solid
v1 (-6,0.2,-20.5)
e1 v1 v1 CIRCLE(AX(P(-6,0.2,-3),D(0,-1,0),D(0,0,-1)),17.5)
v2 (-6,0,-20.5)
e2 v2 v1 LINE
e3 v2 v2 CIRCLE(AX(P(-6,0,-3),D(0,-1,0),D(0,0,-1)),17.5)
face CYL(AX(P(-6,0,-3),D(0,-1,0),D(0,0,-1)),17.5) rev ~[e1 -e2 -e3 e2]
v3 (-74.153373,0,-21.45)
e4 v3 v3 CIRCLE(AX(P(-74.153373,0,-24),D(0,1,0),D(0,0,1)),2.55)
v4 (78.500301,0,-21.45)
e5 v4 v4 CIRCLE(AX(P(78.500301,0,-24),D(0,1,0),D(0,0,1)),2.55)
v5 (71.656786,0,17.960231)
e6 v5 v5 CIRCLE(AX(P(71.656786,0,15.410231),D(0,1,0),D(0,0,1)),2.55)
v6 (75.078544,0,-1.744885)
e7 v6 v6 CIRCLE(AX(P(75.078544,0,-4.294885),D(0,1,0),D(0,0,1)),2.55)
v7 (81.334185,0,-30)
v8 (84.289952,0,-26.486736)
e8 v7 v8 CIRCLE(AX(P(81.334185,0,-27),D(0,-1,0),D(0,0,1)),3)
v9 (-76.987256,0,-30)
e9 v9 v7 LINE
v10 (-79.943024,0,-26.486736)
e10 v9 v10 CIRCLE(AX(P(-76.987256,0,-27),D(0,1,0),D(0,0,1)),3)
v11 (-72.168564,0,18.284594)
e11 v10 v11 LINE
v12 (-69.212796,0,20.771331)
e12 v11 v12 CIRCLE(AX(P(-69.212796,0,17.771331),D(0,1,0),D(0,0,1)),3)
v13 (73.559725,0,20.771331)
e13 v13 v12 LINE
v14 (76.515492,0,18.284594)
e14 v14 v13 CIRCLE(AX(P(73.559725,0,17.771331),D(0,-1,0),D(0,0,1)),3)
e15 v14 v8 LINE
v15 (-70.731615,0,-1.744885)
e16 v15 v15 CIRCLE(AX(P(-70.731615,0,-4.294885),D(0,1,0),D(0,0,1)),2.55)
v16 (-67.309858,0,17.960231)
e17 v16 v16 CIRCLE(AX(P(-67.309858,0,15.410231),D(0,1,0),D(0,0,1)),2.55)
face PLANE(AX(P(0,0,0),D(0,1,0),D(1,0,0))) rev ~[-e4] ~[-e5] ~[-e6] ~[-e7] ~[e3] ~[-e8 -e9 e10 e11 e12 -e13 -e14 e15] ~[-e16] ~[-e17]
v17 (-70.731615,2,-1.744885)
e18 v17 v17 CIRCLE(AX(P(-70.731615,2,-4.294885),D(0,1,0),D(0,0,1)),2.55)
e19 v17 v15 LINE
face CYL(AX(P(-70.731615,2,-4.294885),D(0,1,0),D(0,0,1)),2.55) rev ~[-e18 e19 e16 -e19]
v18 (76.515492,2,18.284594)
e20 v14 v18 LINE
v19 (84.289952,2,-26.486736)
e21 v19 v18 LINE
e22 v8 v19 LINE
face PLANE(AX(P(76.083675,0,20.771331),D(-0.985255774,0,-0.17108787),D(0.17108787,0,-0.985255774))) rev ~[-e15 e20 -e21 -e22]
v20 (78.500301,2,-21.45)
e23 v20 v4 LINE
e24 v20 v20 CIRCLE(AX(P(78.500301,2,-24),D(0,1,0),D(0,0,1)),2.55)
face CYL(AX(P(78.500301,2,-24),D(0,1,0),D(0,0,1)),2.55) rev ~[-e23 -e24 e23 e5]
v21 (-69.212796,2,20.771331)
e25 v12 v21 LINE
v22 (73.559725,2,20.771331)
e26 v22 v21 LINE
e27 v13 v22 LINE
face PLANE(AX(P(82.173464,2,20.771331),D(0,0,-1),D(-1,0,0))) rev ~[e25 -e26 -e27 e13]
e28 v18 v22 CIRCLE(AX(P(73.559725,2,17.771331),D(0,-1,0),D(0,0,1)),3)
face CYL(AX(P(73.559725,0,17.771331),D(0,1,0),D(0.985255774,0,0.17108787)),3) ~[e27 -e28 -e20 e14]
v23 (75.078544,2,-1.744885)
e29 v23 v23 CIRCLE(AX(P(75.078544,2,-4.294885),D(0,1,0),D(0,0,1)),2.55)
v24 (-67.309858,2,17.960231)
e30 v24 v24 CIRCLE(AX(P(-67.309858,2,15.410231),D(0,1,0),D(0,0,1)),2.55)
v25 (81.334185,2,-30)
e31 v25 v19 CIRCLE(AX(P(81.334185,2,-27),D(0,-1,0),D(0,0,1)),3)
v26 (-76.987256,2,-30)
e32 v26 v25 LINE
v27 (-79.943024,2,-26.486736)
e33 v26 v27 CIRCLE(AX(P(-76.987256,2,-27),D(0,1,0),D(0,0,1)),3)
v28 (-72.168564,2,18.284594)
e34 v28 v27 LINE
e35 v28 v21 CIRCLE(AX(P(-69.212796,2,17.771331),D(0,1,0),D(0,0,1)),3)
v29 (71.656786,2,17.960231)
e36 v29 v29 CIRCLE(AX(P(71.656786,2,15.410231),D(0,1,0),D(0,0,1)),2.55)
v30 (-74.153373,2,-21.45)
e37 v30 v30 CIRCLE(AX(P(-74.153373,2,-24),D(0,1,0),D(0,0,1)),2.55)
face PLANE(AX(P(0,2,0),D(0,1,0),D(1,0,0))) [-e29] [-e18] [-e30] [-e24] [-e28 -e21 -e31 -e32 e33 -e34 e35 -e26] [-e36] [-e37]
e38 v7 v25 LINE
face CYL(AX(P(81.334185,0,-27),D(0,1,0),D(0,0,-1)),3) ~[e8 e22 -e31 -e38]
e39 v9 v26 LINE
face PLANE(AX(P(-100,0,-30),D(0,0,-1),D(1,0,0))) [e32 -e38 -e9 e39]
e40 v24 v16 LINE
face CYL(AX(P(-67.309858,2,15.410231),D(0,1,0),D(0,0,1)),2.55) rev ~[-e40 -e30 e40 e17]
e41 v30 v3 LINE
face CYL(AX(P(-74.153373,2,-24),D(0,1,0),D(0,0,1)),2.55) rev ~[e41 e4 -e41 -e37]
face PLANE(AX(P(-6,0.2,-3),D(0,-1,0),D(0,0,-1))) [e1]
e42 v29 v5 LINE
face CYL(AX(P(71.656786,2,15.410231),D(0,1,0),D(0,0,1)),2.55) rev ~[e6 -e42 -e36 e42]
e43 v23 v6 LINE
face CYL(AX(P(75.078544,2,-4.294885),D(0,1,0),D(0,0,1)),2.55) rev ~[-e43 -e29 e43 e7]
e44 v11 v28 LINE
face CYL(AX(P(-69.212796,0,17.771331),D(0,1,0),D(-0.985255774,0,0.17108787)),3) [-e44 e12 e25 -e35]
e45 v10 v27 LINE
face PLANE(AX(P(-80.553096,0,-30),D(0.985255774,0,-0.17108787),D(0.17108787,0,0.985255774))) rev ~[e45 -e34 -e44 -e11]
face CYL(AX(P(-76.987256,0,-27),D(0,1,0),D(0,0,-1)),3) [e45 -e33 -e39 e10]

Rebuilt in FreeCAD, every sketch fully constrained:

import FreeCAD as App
import Part
import Sketcher
Q = App.Units.Quantity


def edges_at(feature, points):
    """Names of the edges that pass closest to the given points."""
    edges = feature.Shape.Edges
    near = lambda p: min(range(len(edges)), key=lambda i: edges[i].distToShape(Part.Vertex(*p))[0])
    return sorted({f"Edge{near(p) + 1}" for p in points})


def add_polygon(sketch, points):
    """Adds a closed chain of lines whose ends are joined by coincident constraints."""
    first, n = sketch.GeometryCount, len(points)
    for a, b in zip(points, points[1:] + points[:1]):
        sketch.addGeometry(Part.LineSegment(App.Vector(*a, 0), App.Vector(*b, 0)), False)
    for i in range(n):
        sketch.addConstraint(Sketcher.Constraint("Coincident", first + i, 2, first + (i + 1) % n, 1))

doc = App.newDocument("Part")
body = doc.addObject("PartDesign::Body", "Body")

# Sketch on XZ plane
sketch1 = body.newObject("Sketcher::SketchObject", "Sketch")
sketch1.AttachmentSupport = (doc.getObject("XZ_Plane"), [""])
sketch1.MapMode = "FlatFace"
add_polygon(sketch1, [(-100, -30), (-100, 30), (100, 30), (100, -30)])  # lines 0-3
sketch1.addConstraint(Sketcher.Constraint("Vertical", 0))
sketch1.addConstraint(Sketcher.Constraint("Horizontal", 1))
sketch1.addConstraint(Sketcher.Constraint("Vertical", 2))
sketch1.addConstraint(Sketcher.Constraint("Horizontal", 3))
sketch1.addConstraint(Sketcher.Constraint("Symmetric", 0, 2, 2, 2, -1, 1))
sketch1.addConstraint(Sketcher.Constraint("DistanceX", 1, 1, 1, 2, Q("200 mm")))
sketch1.addConstraint(Sketcher.Constraint("DistanceY", 0, 1, 0, 2, Q("60 mm")))
pad1 = body.newObject("PartDesign::Pad", "Pad")
pad1.Profile = sketch1
pad1.Length = 2
pad1.Reversed = True

# Sketch on XZ plane
sketch2 = body.newObject("Sketcher::SketchObject", "Sketch001")
sketch2.AttachmentSupport = (doc.getObject("XZ_Plane"), [""])
sketch2.MapMode = "FlatFace"
sketch2.AttachmentOffset = App.Placement(App.Vector(0, 0, -2), App.Rotation())
add_polygon(sketch2, [(82.173464, 20.771331), (-77.826536, 20.771331), (-86.642885, -30), (-100, -30), (-100, 30), (100, 30), (100, -30), (90.989813, -30)])  # lines 0-7
sketch2.addGeometry(Part.Circle(App.Vector(-74.153373, -24, 0), App.Vector(0, 0, 1), 2.55), False)  # 8
sketch2.addGeometry(Part.Circle(App.Vector(-70.731615, -4.294885, 0), App.Vector(0, 0, 1), 2.55), False)  # 9
sketch2.addGeometry(Part.Circle(App.Vector(-67.309858, 15.410231, 0), App.Vector(0, 0, 1), 2.55), False)  # 10
sketch2.addGeometry(Part.Circle(App.Vector(78.500301, -24, 0), App.Vector(0, 0, 1), 2.55), False)  # 11
sketch2.addGeometry(Part.Circle(App.Vector(71.656786, 15.410231, 0), App.Vector(0, 0, 1), 2.55), False)  # 12
sketch2.addGeometry(Part.Circle(App.Vector(75.078544, -4.294885, 0), App.Vector(0, 0, 1), 2.55), False)  # 13
sketch2.addConstraint(Sketcher.Constraint("Horizontal", 0))
sketch2.addConstraint(Sketcher.Constraint("Horizontal", 2))
sketch2.addConstraint(Sketcher.Constraint("Vertical", 3))
sketch2.addConstraint(Sketcher.Constraint("Horizontal", 4))
sketch2.addConstraint(Sketcher.Constraint("Vertical", 5))
sketch2.addConstraint(Sketcher.Constraint("Horizontal", 6))
sketch2.addConstraint(Sketcher.Constraint("Equal", 8, 9))
sketch2.addConstraint(Sketcher.Constraint("Equal", 9, 10))
sketch2.addConstraint(Sketcher.Constraint("Equal", 10, 11))
sketch2.addConstraint(Sketcher.Constraint("Equal", 11, 12))
sketch2.addConstraint(Sketcher.Constraint("Equal", 12, 13))
sketch2.addConstraint(Sketcher.Constraint("Symmetric", 2, 2, 4, 2, -1, 1))
sketch2.addConstraint(Sketcher.Constraint("Horizontal", 8, 3, 11, 3))
sketch2.addConstraint(Sketcher.Constraint("Horizontal", 10, 3, 12, 3))
sketch2.addConstraint(Sketcher.Constraint("Horizontal", 9, 3, 13, 3))
sketch2.addConstraint(Sketcher.Constraint("Horizontal", 2, 2, 5, 2))
sketch2.addConstraint(Sketcher.Constraint("Equal", 1, 7))
sketch2.addConstraint(Sketcher.Constraint("Diameter", 8, Q("5.1 mm")))
sketch2.addConstraint(Sketcher.Constraint("DistanceX", 0, 2, 0, 1, Q("160 mm")))
sketch2.addConstraint(Sketcher.Constraint("DistanceX", 4, 1, 4, 2, Q("200 mm")))
sketch2.addConstraint(Sketcher.Constraint("DistanceY", 3, 1, 3, 2, Q("60 mm")))
sketch2.addConstraint(Sketcher.Constraint("DistanceY", 8, 3, -1, 1, Q("24 mm")))
sketch2.addConstraint(Sketcher.Constraint("DistanceX", -1, 1, 11, 3, Q("78.500301 mm")))
sketch2.addConstraint(Sketcher.Constraint("DistanceX", 9, 3, 12, 3, Q("142.388402 mm")))
sketch2.addConstraint(Sketcher.Constraint("DistanceX", 10, 3, 13, 3, Q("142.388402 mm")))
sketch2.addConstraint(Sketcher.Constraint("DistanceY", 10, 3, 0, 2, Q("5.3611 mm")))
sketch2.addConstraint(Sketcher.Constraint("DistanceX", 2, 2, 2, 1, Q("13.357115 mm")))
sketch2.addConstraint(Sketcher.Constraint("DistanceX", 6, 2, 6, 1, Q("9.010187 mm")))
sketch2.addConstraint(Sketcher.Constraint("DistanceX", 10, 3, -1, 1, Q("67.309858 mm")))
sketch2.addConstraint(Sketcher.Constraint("DistanceY", -1, 1, 10, 3, Q("15.410231 mm")))
sketch2.addConstraint(Sketcher.Constraint("DistanceX", 8, 3, 12, 3, Q("145.810159 mm")))
sketch2.addConstraint(Sketcher.Constraint("DistanceX", 9, 3, 13, 3, Q("145.810159 mm")))
sketch2.addConstraint(Sketcher.Constraint("DistanceY", 9, 3, -1, 1, Q("4.294885 mm")))
pocket1 = body.newObject("PartDesign::Pocket", "Pocket")
pocket1.Profile = sketch2
pocket1.Type = "ThroughAll"
pocket1.Reversed = True

# Sketch on XZ plane
sketch3 = body.newObject("Sketcher::SketchObject", "Sketch002")
sketch3.AttachmentSupport = (doc.getObject("XZ_Plane"), [""])
sketch3.MapMode = "FlatFace"
add_polygon(sketch3, [(76.083675, 20.771331), (84.900024, -30), (90.989813, -30), (82.173464, 20.771331)])  # lines 0-3
add_polygon(sketch3, [(-86.642885, -30), (-80.553096, -30), (-71.736747, 20.771331), (-77.826536, 20.771331)])  # lines 4-7
sketch3.addConstraint(Sketcher.Constraint("Horizontal", 1))
sketch3.addConstraint(Sketcher.Constraint("Horizontal", 3))
sketch3.addConstraint(Sketcher.Constraint("Horizontal", 4))
sketch3.addConstraint(Sketcher.Constraint("Horizontal", 6))
sketch3.addConstraint(Sketcher.Constraint("Parallel", 0, 2))
sketch3.addConstraint(Sketcher.Constraint("Parallel", 5, 7))
sketch3.addConstraint(Sketcher.Constraint("Horizontal", 1, 2, 4, 2))
sketch3.addConstraint(Sketcher.Constraint("Horizontal", 3, 2, 5, 2))
sketch3.addConstraint(Sketcher.Constraint("Equal", 3, 4))
sketch3.addConstraint(Sketcher.Constraint("Equal", 2, 5))
sketch3.addConstraint(Sketcher.Constraint("DistanceY", 0, 2, -1, 1, Q("30 mm")))
sketch3.addConstraint(Sketcher.Constraint("DistanceX", 6, 2, 2, 2, Q("160 mm")))
sketch3.addConstraint(Sketcher.Constraint("DistanceX", 1, 1, 1, 2, Q("6.089789 mm")))
sketch3.addConstraint(Sketcher.Constraint("DistanceY", -1, 1, 2, 2, Q("20.771331 mm")))
sketch3.addConstraint(Sketcher.Constraint("DistanceX", 2, 2, 0, 2, Q("2.72656 mm")))
sketch3.addConstraint(Sketcher.Constraint("DistanceX", -1, 1, 0, 2, Q("84.900024 mm")))
pocket2 = body.newObject("PartDesign::Pocket", "Pocket001")
pocket2.Profile = sketch3
pocket2.Type = "ThroughAll"

# Sketch on XZ plane
sketch4 = body.newObject("Sketcher::SketchObject", "Sketch003")
sketch4.AttachmentSupport = (doc.getObject("XZ_Plane"), [""])
sketch4.MapMode = "FlatFace"
sketch4.addGeometry(Part.Circle(App.Vector(-6, -3, 0), App.Vector(0, 0, 1), 17.5), False)
sketch4.addConstraint(Sketcher.Constraint("Diameter", 0, Q("35 mm")))
sketch4.addConstraint(Sketcher.Constraint("DistanceX", 0, 3, -1, 1, Q("6 mm")))
sketch4.addConstraint(Sketcher.Constraint("DistanceY", 0, 3, -1, 1, Q("3 mm")))
pocket3 = body.newObject("PartDesign::Pocket", "Pocket002")
pocket3.Profile = sketch4
pocket3.Length = 0.2
doc.recompute()

fillet = body.newObject("PartDesign::Fillet", "Fillet")
fillet.Base = (pocket3, edges_at(pocket3, [
    (-80.553, 1, -30),
    (-71.737, 1, 20.771),
    (84.9, 1, -30),
    (76.084, 1, 20.771),
]))
fillet.Radius = 3

doc.recompute()
